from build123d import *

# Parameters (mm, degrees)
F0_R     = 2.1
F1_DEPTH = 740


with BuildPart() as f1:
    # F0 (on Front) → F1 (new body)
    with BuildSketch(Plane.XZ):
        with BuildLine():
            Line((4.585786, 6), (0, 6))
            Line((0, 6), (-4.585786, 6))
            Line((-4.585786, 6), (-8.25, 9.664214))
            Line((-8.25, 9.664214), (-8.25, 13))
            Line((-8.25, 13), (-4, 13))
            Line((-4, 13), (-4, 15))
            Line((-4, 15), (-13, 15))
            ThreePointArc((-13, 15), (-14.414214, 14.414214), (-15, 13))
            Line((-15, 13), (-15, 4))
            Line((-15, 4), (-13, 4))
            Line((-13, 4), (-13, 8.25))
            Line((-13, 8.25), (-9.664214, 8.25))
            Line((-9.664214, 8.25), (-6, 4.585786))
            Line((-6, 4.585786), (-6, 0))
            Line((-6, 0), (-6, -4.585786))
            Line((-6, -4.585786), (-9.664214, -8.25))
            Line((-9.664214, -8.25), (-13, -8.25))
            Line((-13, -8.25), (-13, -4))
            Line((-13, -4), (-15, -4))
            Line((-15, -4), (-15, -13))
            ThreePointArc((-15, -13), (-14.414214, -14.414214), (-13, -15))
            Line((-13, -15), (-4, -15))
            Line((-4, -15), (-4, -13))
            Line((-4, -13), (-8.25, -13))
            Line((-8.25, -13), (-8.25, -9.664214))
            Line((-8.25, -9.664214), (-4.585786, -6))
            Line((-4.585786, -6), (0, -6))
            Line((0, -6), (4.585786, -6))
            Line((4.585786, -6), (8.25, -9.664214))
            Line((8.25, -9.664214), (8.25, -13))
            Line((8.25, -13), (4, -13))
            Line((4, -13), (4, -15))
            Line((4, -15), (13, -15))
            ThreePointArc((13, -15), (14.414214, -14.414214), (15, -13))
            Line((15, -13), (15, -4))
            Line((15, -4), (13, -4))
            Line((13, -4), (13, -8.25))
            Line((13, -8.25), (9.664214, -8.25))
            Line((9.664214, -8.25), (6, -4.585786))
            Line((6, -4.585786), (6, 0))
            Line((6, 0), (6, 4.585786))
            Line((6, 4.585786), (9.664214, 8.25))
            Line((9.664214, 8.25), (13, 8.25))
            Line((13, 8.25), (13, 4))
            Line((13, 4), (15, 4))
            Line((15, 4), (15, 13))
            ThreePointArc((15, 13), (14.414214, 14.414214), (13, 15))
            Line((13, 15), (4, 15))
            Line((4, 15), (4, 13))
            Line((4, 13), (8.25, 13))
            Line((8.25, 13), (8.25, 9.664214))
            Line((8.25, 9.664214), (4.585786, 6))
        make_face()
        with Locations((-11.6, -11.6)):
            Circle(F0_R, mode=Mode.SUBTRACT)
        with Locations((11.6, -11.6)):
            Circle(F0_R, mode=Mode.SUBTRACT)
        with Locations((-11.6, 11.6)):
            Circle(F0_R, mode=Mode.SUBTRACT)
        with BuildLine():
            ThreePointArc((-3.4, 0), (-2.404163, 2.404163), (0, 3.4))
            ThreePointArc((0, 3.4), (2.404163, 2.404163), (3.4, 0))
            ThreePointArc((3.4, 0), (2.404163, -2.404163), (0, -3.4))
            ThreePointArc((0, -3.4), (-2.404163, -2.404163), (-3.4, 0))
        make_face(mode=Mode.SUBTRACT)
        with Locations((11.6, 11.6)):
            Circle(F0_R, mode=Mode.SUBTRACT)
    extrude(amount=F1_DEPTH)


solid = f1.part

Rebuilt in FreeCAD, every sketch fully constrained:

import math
import FreeCAD as App
import Part
import Sketcher

V = App.Vector
Q = App.Units.Quantity

doc = App.newDocument("Part")
body = doc.addObject("PartDesign::Body", "Body")

# Sketch on XZ plane
sketch1 = body.newObject("Sketcher::SketchObject", "Sketch")
sketch1.AttachmentSupport = (doc.getObject("XZ_Plane"), [""])
sketch1.MapMode = "FlatFace"
sketch1.addGeometry([
    Part.LineSegment(V(4.6, 6, 0), V(-4.6, 6, 0)),  # 0
    Part.LineSegment(V(-4.6, 6, 0), V(-8.2, 9.7, 0)),  # 1
    Part.LineSegment(V(-8.2, 9.7, 0), V(-8.2, 13, 0)),  # 2
    Part.LineSegment(V(-8.2, 13, 0), V(-4, 13, 0)),  # 3
    Part.LineSegment(V(-4, 13, 0), V(-4, 15, 0)),  # 4
    Part.LineSegment(V(-4, 15, 0), V(-13, 15, 0)),  # 5
    Part.ArcOfCircle(Part.Circle(V(-13, 13, 0), V(0, 0, 1), 2), math.radians(90), math.radians(180)),  # 6
    Part.LineSegment(V(-15, 13, 0), V(-15, 4, 0)),  # 7
    Part.LineSegment(V(-15, 4, 0), V(-13, 4, 0)),  # 8
    Part.LineSegment(V(-13, 4, 0), V(-13, 8.2, 0)),  # 9
    Part.LineSegment(V(-13, 8.2, 0), V(-9.7, 8.2, 0)),  # 10
    Part.LineSegment(V(-9.7, 8.2, 0), V(-6, 4.6, 0)),  # 11
    Part.LineSegment(V(-6, 4.6, 0), V(-6, -4.6, 0)),  # 12
    Part.LineSegment(V(-6, -4.6, 0), V(-9.7, -8.2, 0)),  # 13
    Part.LineSegment(V(-9.7, -8.2, 0), V(-13, -8.2, 0)),  # 14
    Part.LineSegment(V(-13, -8.2, 0), V(-13, -4, 0)),  # 15
    Part.LineSegment(V(-13, -4, 0), V(-15, -4, 0)),  # 16
    Part.LineSegment(V(-15, -4, 0), V(-15, -13, 0)),  # 17
    Part.ArcOfCircle(Part.Circle(V(-13, -13, 0), V(0, 0, 1), 2), math.radians(180), math.radians(270)),  # 18
    Part.LineSegment(V(-13, -15, 0), V(-4, -15, 0)),  # 19
    Part.LineSegment(V(-4, -15, 0), V(-4, -13, 0)),  # 20
    Part.LineSegment(V(-4, -13, 0), V(-8.2, -13, 0)),  # 21
    Part.LineSegment(V(-8.2, -13, 0), V(-8.2, -9.7, 0)),  # 22
    Part.LineSegment(V(-8.2, -9.7, 0), V(-4.6, -6, 0)),  # 23
    Part.LineSegment(V(-4.6, -6, 0), V(4.6, -6, 0)),  # 24
    Part.LineSegment(V(4.6, -6, 0), V(8.2, -9.7, 0)),  # 25
    Part.LineSegment(V(8.2, -9.7, 0), V(8.2, -13, 0)),  # 26
    Part.LineSegment(V(8.2, -13, 0), V(4, -13, 0)),  # 27
    Part.LineSegment(V(4, -13, 0), V(4, -15, 0)),  # 28
    Part.LineSegment(V(4, -15, 0), V(13, -15, 0)),  # 29
    Part.ArcOfCircle(Part.Circle(V(13, -13, 0), V(0, 0, 1), 2), math.radians(-90), math.radians(0)),  # 30
    Part.LineSegment(V(15, -13, 0), V(15, -4, 0)),  # 31
    Part.LineSegment(V(15, -4, 0), V(13, -4, 0)),  # 32
    Part.LineSegment(V(13, -4, 0), V(13, -8.2, 0)),  # 33
    Part.LineSegment(V(13, -8.2, 0), V(9.7, -8.2, 0)),  # 34
    Part.LineSegment(V(9.7, -8.2, 0), V(6, -4.6, 0)),  # 35
    Part.LineSegment(V(6, -4.6, 0), V(6, 4.6, 0)),  # 36
    Part.LineSegment(V(6, 4.6, 0), V(9.7, 8.2, 0)),  # 37
    Part.LineSegment(V(9.7, 8.2, 0), V(13, 8.2, 0)),  # 38
    Part.LineSegment(V(13, 8.2, 0), V(13, 4, 0)),  # 39
    Part.LineSegment(V(13, 4, 0), V(15, 4, 0)),  # 40
    Part.LineSegment(V(15, 4, 0), V(15, 13, 0)),  # 41
    Part.ArcOfCircle(Part.Circle(V(13, 13, 0), V(0, 0, 1), 2), math.radians(0), math.radians(90)),  # 42
    Part.LineSegment(V(13, 15, 0), V(4, 15, 0)),  # 43
    Part.LineSegment(V(4, 15, 0), V(4, 13, 0)),  # 44
    Part.LineSegment(V(4, 13, 0), V(8.2, 13, 0)),  # 45
    Part.LineSegment(V(8.2, 13, 0), V(8.2, 9.7, 0)),  # 46
    Part.LineSegment(V(8.2, 9.7, 0), V(4.6, 6, 0)),  # 47
    Part.Circle(V(-11.6, -11.6, 0), V(0, 0, 1), 2.1),  # 48
    Part.Circle(V(11.6, -11.6, 0), V(0, 0, 1), 2.1),  # 49
    Part.Circle(V(-11.6, 11.6, 0), V(0, 0, 1), 2.1),  # 50
    Part.ArcOfCircle(Part.Circle(V(0, 0, 0), V(0, 0, 1), 3.4), math.radians(-180), math.radians(-90)),  # 51
    Part.ArcOfCircle(Part.Circle(V(0, 0, 0), V(0, 0, 1), 3.4), math.radians(90), math.radians(180)),  # 52
    Part.ArcOfCircle(Part.Circle(V(0, 0, 0), V(0, 0, 1), 3.4), math.radians(0), math.radians(90)),  # 53
    Part.ArcOfCircle(Part.Circle(V(0, 0, 0), V(0, 0, 1), 3.4), math.radians(-90), math.radians(0)),  # 54
    Part.Circle(V(11.6, 11.6, 0), V(0, 0, 1), 2.1),  # 55
], False)
sketch1.addConstraint([
    Sketcher.Constraint("Coincident", 0, 2, 1, 1),
    Sketcher.Constraint("Coincident", 1, 2, 2, 1),
    Sketcher.Constraint("Coincident", 2, 2, 3, 1),
    Sketcher.Constraint("Coincident", 3, 2, 4, 1),
    Sketcher.Constraint("Coincident", 4, 2, 5, 1),
    Sketcher.Constraint("Tangent", 5, 2, 6, 1),
    Sketcher.Constraint("Tangent", 6, 2, 7, 1),
    Sketcher.Constraint("Coincident", 7, 2, 8, 1),
    Sketcher.Constraint("Coincident", 8, 2, 9, 1),
    Sketcher.Constraint("Coincident", 9, 2, 10, 1),
    Sketcher.Constraint("Coincident", 10, 2, 11, 1),
    Sketcher.Constraint("Coincident", 11, 2, 12, 1),
    Sketcher.Constraint("Coincident", 12, 2, 13, 1),
    Sketcher.Constraint("Coincident", 13, 2, 14, 1),
    Sketcher.Constraint("Coincident", 14, 2, 15, 1),
    Sketcher.Constraint("Coincident", 15, 2, 16, 1),
    Sketcher.Constraint("Coincident", 16, 2, 17, 1),
    Sketcher.Constraint("Tangent", 17, 2, 18, 1),
    Sketcher.Constraint("Tangent", 18, 2, 19, 1),
    Sketcher.Constraint("Coincident", 19, 2, 20, 1),
    Sketcher.Constraint("Coincident", 20, 2, 21, 1),
    Sketcher.Constraint("Coincident", 21, 2, 22, 1),
    Sketcher.Constraint("Coincident", 22, 2, 23, 1),
    Sketcher.Constraint("Coincident", 23, 2, 24, 1),
    Sketcher.Constraint("Coincident", 24, 2, 25, 1),
    Sketcher.Constraint("Coincident", 25, 2, 26, 1),
    Sketcher.Constraint("Coincident", 26, 2, 27, 1),
    Sketcher.Constraint("Coincident", 27, 2, 28, 1),
    Sketcher.Constraint("Coincident", 28, 2, 29, 1),
    Sketcher.Constraint("Tangent", 29, 2, 30, 1),
    Sketcher.Constraint("Tangent", 30, 2, 31, 1),
    Sketcher.Constraint("Coincident", 31, 2, 32, 1),
    Sketcher.Constraint("Coincident", 32, 2, 33, 1),
    Sketcher.Constraint("Coincident", 33, 2, 34, 1),
    Sketcher.Constraint("Coincident", 34, 2, 35, 1),
    Sketcher.Constraint("Coincident", 35, 2, 36, 1),
    Sketcher.Constraint("Coincident", 36, 2, 37, 1),
    Sketcher.Constraint("Coincident", 37, 2, 38, 1),
    Sketcher.Constraint("Coincident", 38, 2, 39, 1),
    Sketcher.Constraint("Coincident", 39, 2, 40, 1),
    Sketcher.Constraint("Coincident", 40, 2, 41, 1),
    Sketcher.Constraint("Tangent", 41, 2, 42, 1),
    Sketcher.Constraint("Tangent", 42, 2, 43, 1),
    Sketcher.Constraint("Coincident", 43, 2, 44, 1),
    Sketcher.Constraint("Coincident", 44, 2, 45, 1),
    Sketcher.Constraint("Coincident", 45, 2, 46, 1),
    Sketcher.Constraint("Coincident", 46, 2, 47, 1),
    Sketcher.Constraint("Coincident", 47, 2, 0, 1),
    Sketcher.Constraint("Tangent", 51, 1, 52, 2),
    Sketcher.Constraint("Tangent", 52, 1, 53, 2),
    Sketcher.Constraint("Tangent", 53, 1, 54, 2),
    Sketcher.Constraint("Tangent", 54, 1, 51, 2),
    Sketcher.Constraint("Horizontal", 0),
    Sketcher.Constraint("Vertical", 2),
    Sketcher.Constraint("Horizontal", 3),
    Sketcher.Constraint("Vertical", 4),
    Sketcher.Constraint("Horizontal", 5),
    Sketcher.Constraint("Vertical", 7),
    Sketcher.Constraint("Horizontal", 8),
    Sketcher.Constraint("Vertical", 9),
    Sketcher.Constraint("Horizontal", 10),
    Sketcher.Constraint("Vertical", 12),
    Sketcher.Constraint("Horizontal", 14),
    Sketcher.Constraint("Vertical", 15),
    Sketcher.Constraint("Horizontal", 16),
    Sketcher.Constraint("Vertical", 17),
    Sketcher.Constraint("Horizontal", 19),
    Sketcher.Constraint("Vertical", 20),
    Sketcher.Constraint("Horizontal", 21),
    Sketcher.Constraint("Vertical", 22),
    Sketcher.Constraint("Horizontal", 24),
    Sketcher.Constraint("Vertical", 26),
    Sketcher.Constraint("Horizontal", 27),
    Sketcher.Constraint("Vertical", 28),
    Sketcher.Constraint("Horizontal", 29),
    Sketcher.Constraint("Vertical", 31),
    Sketcher.Constraint("Horizontal", 32),
    Sketcher.Constraint("Vertical", 33),
    Sketcher.Constraint("Horizontal", 34),
    Sketcher.Constraint("Vertical", 36),
    Sketcher.Constraint("Horizontal", 38),
    Sketcher.Constraint("Vertical", 39),
    Sketcher.Constraint("Horizontal", 40),
    Sketcher.Constraint("Vertical", 41),
    Sketcher.Constraint("Horizontal", 43),
    Sketcher.Constraint("Vertical", 44),
    Sketcher.Constraint("Horizontal", 45),
    Sketcher.Constraint("Vertical", 46),
    Sketcher.Constraint("Coincident", 51, 3, -1, 1),
    Sketcher.Constraint("Equal", 6, 18),
    Sketcher.Constraint("Equal", 18, 30),
    Sketcher.Constraint("Equal", 30, 42),
    Sketcher.Constraint("Equal", 48, 49),
    Sketcher.Constraint("Equal", 49, 50),
    Sketcher.Constraint("Equal", 51, 52),
    Sketcher.Constraint("Equal", 50, 55),
    Sketcher.Constraint("Symmetric", 6, 3, 30, 3, -1, 1),
    Sketcher.Constraint("Symmetric", 18, 3, 42, 3, -1, 1),
    Sketcher.Constraint("Symmetric", 49, 3, 50, 3, -1, 1),
    Sketcher.Constraint("Symmetric", 48, 3, 55, 3, -1, 1),
    Sketcher.Constraint("Symmetric", 0, 2, 24, 2, -1, 1),
    Sketcher.Constraint("Symmetric", 1, 2, 25, 2, -1, 1),
    Sketcher.Constraint("Symmetric", 3, 2, 27, 2, -1, 1),
    Sketcher.Constraint("Symmetric", 8, 2, 32, 2, -1, 1),
    Sketcher.Constraint("Symmetric", 10, 2, 34, 2, -1, 1),
    Sketcher.Constraint("Symmetric", 11, 2, 35, 2, -1, 1),
    Sketcher.Constraint("Symmetric", 13, 2, 37, 2, -1, 1),
    Sketcher.Constraint("Symmetric", 15, 2, 39, 2, -1, 1),
    Sketcher.Constraint("Symmetric", 20, 2, 44, 2, -1, 1),
    Sketcher.Constraint("Symmetric", 22, 2, 46, 2, -1, 1),
    Sketcher.Constraint("Symmetric", 18, 3, 30, 3, -2),
    Sketcher.Constraint("Symmetric", 48, 3, 49, 3, -2),
    Sketcher.Constraint("Symmetric", 22, 2, 25, 2, -2),
    Sketcher.Constraint("Symmetric", 20, 2, 27, 2, -2),
    Sketcher.Constraint("Symmetric", 15, 2, 32, 2, -2),
    Sketcher.Constraint("Symmetric", 13, 2, 34, 2, -2),
    Sketcher.Constraint("PointOnObject", 51, 1, -1),
    Sketcher.Constraint("PointOnObject", 52, 1, -2),
    Sketcher.Constraint("PointOnObject", 53, 1, -1),
    Sketcher.Constraint("PointOnObject", 54, 1, -2),
    Sketcher.Constraint("Parallel", 1, 11),
    Sketcher.Constraint("Perpendicular", 11, 13),
    Sketcher.Constraint("Parallel", 13, 23),
    Sketcher.Constraint("Perpendicular", 35, 37),
    Sketcher.Constraint("Parallel", 37, 47),
    Sketcher.Constraint("Horizontal", 42, 3, 2, 2),
    Sketcher.Constraint("Horizontal", 12, 2, 35, 2),
    Sketcher.Constraint("Vertical", 5, 2, 8, 2),
    Sketcher.Constraint("Equal", 38, 2),
    Sketcher.Constraint("Equal", 43, 7),
    Sketcher.Constraint("Equal", 45, 9),
    Sketcher.Constraint("Equal", 24, 12),
    Sketcher.Constraint("Equal", 1, 11),
    Sketcher.Constraint("Radius", 6, Q("1.999999 mm")),
    Sketcher.Constraint("Diameter", 48, Q("4.2 mm")),
    Sketcher.Constraint("Radius", 51, Q("3.4 mm")),
    Sketcher.Constraint("DistanceX", 5, 2, 5, 1, Q("9 mm")),
    Sketcher.Constraint("DistanceX", 6, 3, -1, 1, Q("13.000001 mm")),
    Sketcher.Constraint("DistanceY", -1, 1, 0, 2, Q("6 mm")),
    Sketcher.Constraint("DistanceX", 3, 1, 3, 2, Q("4.25 mm")),
    Sketcher.Constraint("DistanceX", 48, 3, -1, 1, Q("11.6 mm")),
    Sketcher.Constraint("DistanceY", 48, 3, -1, 1, Q("11.6 mm")),
    Sketcher.Constraint("Distance", 1, Q("5.181981 mm")),
])
pad1 = body.newObject("PartDesign::Pad", "Pad")
pad1.Profile = sketch1
pad1.Length = 740

doc.recompute()
